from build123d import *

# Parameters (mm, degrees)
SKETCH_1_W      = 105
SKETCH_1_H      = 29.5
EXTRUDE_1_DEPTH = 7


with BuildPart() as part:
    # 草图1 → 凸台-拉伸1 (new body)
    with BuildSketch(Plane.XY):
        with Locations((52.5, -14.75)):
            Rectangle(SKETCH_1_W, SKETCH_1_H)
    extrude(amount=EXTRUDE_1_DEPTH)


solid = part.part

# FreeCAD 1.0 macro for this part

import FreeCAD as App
import Part
import Sketcher

V = App.Vector
Q = App.Units.Quantity


def add_polygon(sketch, points):
    """Adds a closed chain of lines whose ends are joined by coincident constraints."""
    first, n = sketch.GeometryCount, len(points)
    for a, b in zip(points, points[1:] + points[:1]):
        sketch.addGeometry(Part.LineSegment(App.Vector(*a, 0), App.Vector(*b, 0)), False)
    for i in range(n):
        sketch.addConstraint(Sketcher.Constraint("Coincident", first + i, 2, first + (i + 1) % n, 1))

doc = App.newDocument("Part")
body = doc.addObject("PartDesign::Body", "Body")

sketch1 = body.newObject("Sketcher::SketchObject", "Sketch")
sketch1.AttachmentSupport = (doc.getObject("XY_Plane"), [""])
sketch1.MapMode = "FlatFace"
add_polygon(sketch1, [(0, 0), (0, -29.5), (105, -29.5), (105, 0)])
sketch1.addConstraint([
    Sketcher.Constraint("Vertical", 0),
    Sketcher.Constraint("Horizontal", 1),
    Sketcher.Constraint("Vertical", 2),
    Sketcher.Constraint("Horizontal", 3),
    Sketcher.Constraint("Coincident", 3, 2, -1, 1),
    Sketcher.Constraint("DistanceX", 1, 1, 1, 2, Q("105 mm")),
    Sketcher.Constraint("DistanceY", 0, 2, 0, 1, Q("29.5 mm")),
])
pad1 = body.newObject("PartDesign::Pad", "Pad")
pad1.Profile = sketch1
pad1.Length = 7

doc.recompute()
